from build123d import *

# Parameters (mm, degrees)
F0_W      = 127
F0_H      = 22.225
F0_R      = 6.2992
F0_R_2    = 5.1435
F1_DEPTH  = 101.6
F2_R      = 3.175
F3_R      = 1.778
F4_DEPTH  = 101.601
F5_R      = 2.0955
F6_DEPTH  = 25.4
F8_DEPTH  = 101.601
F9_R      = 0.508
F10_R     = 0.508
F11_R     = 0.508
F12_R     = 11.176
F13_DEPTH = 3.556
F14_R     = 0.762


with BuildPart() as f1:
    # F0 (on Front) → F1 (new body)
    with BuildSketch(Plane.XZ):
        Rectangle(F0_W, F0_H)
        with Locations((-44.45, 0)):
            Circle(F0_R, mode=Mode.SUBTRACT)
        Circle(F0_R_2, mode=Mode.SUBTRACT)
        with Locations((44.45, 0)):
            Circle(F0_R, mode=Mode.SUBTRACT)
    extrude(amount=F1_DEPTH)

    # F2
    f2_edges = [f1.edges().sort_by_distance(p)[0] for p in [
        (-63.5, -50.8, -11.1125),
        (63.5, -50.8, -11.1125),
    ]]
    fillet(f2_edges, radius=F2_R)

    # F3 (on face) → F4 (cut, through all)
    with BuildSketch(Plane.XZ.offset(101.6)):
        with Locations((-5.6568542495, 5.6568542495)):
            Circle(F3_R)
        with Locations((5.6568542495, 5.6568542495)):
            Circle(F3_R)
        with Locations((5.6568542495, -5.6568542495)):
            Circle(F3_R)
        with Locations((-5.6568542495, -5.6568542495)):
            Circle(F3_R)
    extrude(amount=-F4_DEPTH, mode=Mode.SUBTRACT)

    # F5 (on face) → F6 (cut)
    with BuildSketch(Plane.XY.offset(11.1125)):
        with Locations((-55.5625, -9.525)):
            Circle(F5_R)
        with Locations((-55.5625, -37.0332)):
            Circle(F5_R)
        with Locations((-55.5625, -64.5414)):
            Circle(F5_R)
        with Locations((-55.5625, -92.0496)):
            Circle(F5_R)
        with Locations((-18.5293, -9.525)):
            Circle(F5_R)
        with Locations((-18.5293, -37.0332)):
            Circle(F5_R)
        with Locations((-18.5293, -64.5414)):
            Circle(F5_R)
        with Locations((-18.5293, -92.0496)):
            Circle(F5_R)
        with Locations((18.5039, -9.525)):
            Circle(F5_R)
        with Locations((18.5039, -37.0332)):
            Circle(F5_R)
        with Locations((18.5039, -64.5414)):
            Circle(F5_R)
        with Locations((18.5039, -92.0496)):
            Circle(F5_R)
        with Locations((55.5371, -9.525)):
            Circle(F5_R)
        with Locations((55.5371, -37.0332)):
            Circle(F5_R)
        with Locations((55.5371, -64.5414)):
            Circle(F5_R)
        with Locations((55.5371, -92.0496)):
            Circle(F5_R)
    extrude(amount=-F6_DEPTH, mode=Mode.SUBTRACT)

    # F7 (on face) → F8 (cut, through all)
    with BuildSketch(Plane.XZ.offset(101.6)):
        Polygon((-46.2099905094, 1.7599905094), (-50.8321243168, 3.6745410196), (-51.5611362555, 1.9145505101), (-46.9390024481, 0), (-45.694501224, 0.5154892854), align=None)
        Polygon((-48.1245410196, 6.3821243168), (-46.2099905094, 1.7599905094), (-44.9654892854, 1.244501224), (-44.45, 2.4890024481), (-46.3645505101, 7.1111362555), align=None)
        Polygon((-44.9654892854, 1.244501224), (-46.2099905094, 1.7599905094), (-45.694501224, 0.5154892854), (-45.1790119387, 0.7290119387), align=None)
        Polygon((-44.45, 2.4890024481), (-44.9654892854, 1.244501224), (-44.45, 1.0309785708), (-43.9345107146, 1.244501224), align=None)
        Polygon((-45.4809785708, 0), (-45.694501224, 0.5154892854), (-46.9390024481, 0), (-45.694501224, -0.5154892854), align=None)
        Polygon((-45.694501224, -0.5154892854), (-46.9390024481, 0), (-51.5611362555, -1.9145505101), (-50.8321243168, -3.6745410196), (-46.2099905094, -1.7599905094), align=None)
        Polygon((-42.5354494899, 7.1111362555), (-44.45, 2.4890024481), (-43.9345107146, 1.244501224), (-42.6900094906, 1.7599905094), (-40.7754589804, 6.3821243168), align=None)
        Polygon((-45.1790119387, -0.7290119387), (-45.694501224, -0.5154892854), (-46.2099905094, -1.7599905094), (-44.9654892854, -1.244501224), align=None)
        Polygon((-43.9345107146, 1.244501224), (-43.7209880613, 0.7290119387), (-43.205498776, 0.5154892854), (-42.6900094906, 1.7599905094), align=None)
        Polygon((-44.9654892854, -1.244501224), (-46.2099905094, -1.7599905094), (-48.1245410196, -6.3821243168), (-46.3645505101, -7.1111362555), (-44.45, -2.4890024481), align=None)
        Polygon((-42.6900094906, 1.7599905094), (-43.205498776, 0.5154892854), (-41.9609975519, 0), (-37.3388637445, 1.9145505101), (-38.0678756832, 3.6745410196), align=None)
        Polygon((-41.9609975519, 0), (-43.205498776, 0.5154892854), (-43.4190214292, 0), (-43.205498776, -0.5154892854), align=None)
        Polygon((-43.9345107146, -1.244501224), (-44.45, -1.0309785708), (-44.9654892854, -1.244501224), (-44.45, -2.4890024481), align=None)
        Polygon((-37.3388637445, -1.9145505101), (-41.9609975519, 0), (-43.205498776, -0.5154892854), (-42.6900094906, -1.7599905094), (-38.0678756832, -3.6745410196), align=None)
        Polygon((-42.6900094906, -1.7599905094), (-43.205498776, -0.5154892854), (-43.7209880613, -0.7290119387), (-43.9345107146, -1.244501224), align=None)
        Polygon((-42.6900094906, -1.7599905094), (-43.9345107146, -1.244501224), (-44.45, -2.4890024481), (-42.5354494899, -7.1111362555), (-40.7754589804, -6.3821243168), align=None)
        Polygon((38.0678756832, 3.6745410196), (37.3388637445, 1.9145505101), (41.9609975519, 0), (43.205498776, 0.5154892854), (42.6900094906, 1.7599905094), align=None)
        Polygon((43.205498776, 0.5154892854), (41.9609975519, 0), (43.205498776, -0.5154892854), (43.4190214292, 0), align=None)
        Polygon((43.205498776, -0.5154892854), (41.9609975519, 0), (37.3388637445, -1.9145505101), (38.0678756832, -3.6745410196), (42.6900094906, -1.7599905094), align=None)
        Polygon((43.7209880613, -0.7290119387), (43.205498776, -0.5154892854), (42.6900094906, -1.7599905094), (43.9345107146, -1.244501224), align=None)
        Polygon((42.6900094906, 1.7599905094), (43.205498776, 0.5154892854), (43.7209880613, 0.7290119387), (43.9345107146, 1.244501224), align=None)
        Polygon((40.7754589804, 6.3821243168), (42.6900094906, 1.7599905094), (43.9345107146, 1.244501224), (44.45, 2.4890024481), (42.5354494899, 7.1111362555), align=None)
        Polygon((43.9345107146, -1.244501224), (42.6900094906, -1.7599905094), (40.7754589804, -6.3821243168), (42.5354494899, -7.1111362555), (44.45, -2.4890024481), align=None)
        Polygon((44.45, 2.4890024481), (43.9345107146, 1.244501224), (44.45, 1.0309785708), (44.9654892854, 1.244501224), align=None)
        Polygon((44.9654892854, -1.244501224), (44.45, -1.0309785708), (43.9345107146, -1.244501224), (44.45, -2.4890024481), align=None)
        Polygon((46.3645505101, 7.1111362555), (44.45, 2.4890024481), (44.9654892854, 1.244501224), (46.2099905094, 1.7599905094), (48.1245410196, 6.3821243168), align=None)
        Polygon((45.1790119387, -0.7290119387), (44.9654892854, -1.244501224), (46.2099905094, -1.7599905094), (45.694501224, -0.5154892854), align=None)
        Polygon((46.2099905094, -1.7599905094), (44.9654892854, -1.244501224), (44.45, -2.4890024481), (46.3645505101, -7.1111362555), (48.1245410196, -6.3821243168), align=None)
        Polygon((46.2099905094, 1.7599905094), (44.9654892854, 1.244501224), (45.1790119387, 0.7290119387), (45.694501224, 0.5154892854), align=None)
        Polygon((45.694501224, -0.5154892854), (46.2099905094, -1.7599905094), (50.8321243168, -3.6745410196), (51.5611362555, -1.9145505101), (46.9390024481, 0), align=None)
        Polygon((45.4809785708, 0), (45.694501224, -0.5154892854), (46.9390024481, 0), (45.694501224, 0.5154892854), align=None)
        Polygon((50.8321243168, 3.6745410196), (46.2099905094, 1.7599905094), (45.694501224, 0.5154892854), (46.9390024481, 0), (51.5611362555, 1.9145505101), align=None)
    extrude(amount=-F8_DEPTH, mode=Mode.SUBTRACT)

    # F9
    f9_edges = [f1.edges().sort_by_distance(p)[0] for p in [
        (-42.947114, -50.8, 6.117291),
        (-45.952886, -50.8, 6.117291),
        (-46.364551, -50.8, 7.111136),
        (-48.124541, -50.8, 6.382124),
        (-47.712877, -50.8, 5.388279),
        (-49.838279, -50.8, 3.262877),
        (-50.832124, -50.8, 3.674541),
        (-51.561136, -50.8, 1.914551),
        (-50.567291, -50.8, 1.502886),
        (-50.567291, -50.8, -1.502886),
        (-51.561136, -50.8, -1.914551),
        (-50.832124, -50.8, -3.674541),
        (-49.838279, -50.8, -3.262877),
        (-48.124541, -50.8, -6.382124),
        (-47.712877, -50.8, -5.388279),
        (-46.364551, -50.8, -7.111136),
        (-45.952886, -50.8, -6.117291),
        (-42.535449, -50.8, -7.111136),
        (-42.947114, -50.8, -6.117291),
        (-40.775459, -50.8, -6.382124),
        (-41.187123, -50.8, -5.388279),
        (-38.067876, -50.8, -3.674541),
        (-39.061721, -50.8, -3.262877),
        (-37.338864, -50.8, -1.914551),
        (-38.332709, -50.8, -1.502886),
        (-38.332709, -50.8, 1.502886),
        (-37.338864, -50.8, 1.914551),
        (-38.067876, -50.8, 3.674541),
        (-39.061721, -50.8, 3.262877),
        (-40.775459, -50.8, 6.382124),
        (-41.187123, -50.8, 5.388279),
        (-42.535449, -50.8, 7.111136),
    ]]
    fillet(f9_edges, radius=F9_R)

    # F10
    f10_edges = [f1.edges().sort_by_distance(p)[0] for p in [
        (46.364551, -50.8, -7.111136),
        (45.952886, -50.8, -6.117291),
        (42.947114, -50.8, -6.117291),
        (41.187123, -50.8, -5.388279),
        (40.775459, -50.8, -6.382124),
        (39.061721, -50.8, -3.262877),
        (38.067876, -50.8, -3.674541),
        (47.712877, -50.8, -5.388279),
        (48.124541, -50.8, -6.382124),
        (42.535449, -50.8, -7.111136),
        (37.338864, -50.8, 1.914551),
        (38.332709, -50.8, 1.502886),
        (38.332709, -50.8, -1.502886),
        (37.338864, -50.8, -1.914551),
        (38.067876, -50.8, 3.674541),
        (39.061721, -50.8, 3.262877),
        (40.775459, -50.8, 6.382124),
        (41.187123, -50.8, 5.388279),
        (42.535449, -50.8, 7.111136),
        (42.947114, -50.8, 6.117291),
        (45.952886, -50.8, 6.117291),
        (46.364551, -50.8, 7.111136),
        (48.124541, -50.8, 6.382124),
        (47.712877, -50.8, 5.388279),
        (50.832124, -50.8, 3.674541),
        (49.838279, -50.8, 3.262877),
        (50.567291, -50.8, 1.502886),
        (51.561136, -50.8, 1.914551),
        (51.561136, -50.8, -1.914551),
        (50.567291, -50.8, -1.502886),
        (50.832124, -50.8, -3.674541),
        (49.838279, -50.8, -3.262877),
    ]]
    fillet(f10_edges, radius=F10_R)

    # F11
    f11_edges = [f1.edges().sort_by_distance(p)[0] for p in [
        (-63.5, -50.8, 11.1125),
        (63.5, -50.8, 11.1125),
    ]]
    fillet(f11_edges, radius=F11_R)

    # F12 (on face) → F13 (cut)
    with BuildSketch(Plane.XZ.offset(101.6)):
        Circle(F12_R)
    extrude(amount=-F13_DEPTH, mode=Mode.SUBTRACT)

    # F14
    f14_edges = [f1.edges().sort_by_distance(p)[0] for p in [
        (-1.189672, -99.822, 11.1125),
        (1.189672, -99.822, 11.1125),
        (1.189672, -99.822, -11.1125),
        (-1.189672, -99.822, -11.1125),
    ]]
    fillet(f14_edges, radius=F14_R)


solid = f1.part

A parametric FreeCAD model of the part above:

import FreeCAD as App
import Part
import Sketcher

V = App.Vector
Q = App.Units.Quantity


def edges_at(feature, points):
    """Names of the edges that pass closest to the given points."""
    edges = feature.Shape.Edges
    near = lambda p: min(range(len(edges)), key=lambda i: edges[i].distToShape(Part.Vertex(*p))[0])
    return sorted({f"Edge{near(p) + 1}" for p in points})


def add_polygon(sketch, points):
    """Adds a closed chain of lines whose ends are joined by coincident constraints."""
    first, n = sketch.GeometryCount, len(points)
    for a, b in zip(points, points[1:] + points[:1]):
        sketch.addGeometry(Part.LineSegment(App.Vector(*a, 0), App.Vector(*b, 0)), False)
    for i in range(n):
        sketch.addConstraint(Sketcher.Constraint("Coincident", first + i, 2, first + (i + 1) % n, 1))

doc = App.newDocument("Part")
body = doc.addObject("PartDesign::Body", "Body")

# Sketch on XZ plane
sketch1 = body.newObject("Sketcher::SketchObject", "Sketch")
sketch1.AttachmentSupport = (doc.getObject("XZ_Plane"), [""])
sketch1.MapMode = "FlatFace"
add_polygon(sketch1, [(-64, 11), (-64, -11), (64, -11), (64, 11)])  # lines 0-3
sketch1.addGeometry(Part.Circle(V(-44, 0, 0), V(0, 0, 1), 6), False)  # 4
sketch1.addGeometry(Part.Circle(V(0, 0, 0), V(0, 0, 1), 5), False)  # 5
sketch1.addGeometry(Part.Circle(V(44, 0, 0), V(0, 0, 1), 6), False)  # 6
sketch1.addConstraint(Sketcher.Constraint("Vertical", 0))
sketch1.addConstraint(Sketcher.Constraint("Horizontal", 1))
sketch1.addConstraint(Sketcher.Constraint("Vertical", 2))
sketch1.addConstraint(Sketcher.Constraint("Horizontal", 3))
sketch1.addConstraint(Sketcher.Constraint("Coincident", 5, 3, -1, 1))
sketch1.addConstraint(Sketcher.Constraint("Equal", 4, 6))
sketch1.addConstraint(Sketcher.Constraint("Symmetric", 4, 3, 6, 3, -1, 1))
sketch1.addConstraint(Sketcher.Constraint("Symmetric", 0, 2, 2, 2, -1, 1))
sketch1.addConstraint(Sketcher.Constraint("PointOnObject", 4, 3, -1))
sketch1.addConstraint(Sketcher.Constraint("DistanceX", 1, 1, 1, 2, Q("5 in")))
sketch1.addConstraint(Sketcher.Constraint("Diameter", 4, Q("0.496 in")))
sketch1.addConstraint(Sketcher.Constraint("Diameter", 5, Q("0.405 in")))
sketch1.addConstraint(Sketcher.Constraint("DistanceX", 4, 3, 6, 3, Q("3.5 in")))
sketch1.addConstraint(Sketcher.Constraint("DistanceY", 0, 2, 0, 1, Q("0.875 in")))
pad1 = body.newObject("PartDesign::Pad", "Pad")
pad1.Profile = sketch1
pad1.Length = Q("4 in")
doc.recompute()

fillet = body.newObject("PartDesign::Fillet", "Fillet")
fillet.Base = (pad1, edges_at(pad1, [(-63.5, -50.8, -11.113), (63.5, -50.8, -11.113)]))
fillet.Radius = Q("0.125 in")

# Sketch on XZ plane
sketch2 = body.newObject("Sketcher::SketchObject", "Sketch001")
sketch2.AttachmentSupport = (doc.getObject("XZ_Plane"), [""])
sketch2.MapMode = "FlatFace"
sketch2.AttachmentOffset = App.Placement(V(0, 0, 4 * 25.4), App.Rotation())
sketch2.addGeometry(Part.Circle(V(-5.7, 5.7, 0), V(0, 0, 1), 1.8), False)
sketch2.addGeometry(Part.Circle(V(5.7, 5.7, 0), V(0, 0, 1), 1.8), False)
sketch2.addGeometry(Part.Circle(V(5.7, -5.7, 0), V(0, 0, 1), 1.8), False)
sketch2.addGeometry(Part.Circle(V(-5.7, -5.7, 0), V(0, 0, 1), 1.8), False)
sketch2.addConstraint(Sketcher.Constraint("Equal", 0, 1))
sketch2.addConstraint(Sketcher.Constraint("Equal", 1, 2))
sketch2.addConstraint(Sketcher.Constraint("Equal", 2, 3))
sketch2.addConstraint(Sketcher.Constraint("Symmetric", 0, 3, 2, 3, -1, 1))
sketch2.addConstraint(Sketcher.Constraint("Symmetric", 1, 3, 3, 3, -1, 1))
sketch2.addConstraint(Sketcher.Constraint("Symmetric", 0, 3, 1, 3, -2))
sketch2.addConstraint(Sketcher.Constraint("Diameter", 0, Q("0.14 in")))
sketch2.addConstraint(Sketcher.Constraint("DistanceX", 0, 3, 1, 3, Q("11.313709 mm")))
sketch2.addConstraint(Sketcher.Constraint("DistanceY", 2, 3, 1, 3, Q("11.313709 mm")))
pocket1 = body.newObject("PartDesign::Pocket", "Pocket")
pocket1.Profile = sketch2
pocket1.Type = "ThroughAll"

# Sketch on XY plane
sketch3 = body.newObject("Sketcher::SketchObject", "Sketch002")
sketch3.AttachmentSupport = (doc.getObject("XY_Plane"), [""])
sketch3.MapMode = "FlatFace"
sketch3.AttachmentOffset = App.Placement(V(0, 0, 0.4375 * 25.4), App.Rotation())
sketch3.addGeometry(Part.Circle(V(-55.6, -9.5, 0), V(0, 0, 1), 2.1), False)
sketch3.addGeometry(Part.Circle(V(-55.6, -37, 0), V(0, 0, 1), 2.1), False)
sketch3.addGeometry(Part.Circle(V(-55.6, -64.5, 0), V(0, 0, 1), 2.1), False)
sketch3.addGeometry(Part.Circle(V(-55.6, -92, 0), V(0, 0, 1), 2.1), False)
sketch3.addGeometry(Part.Circle(V(-18.5, -9.5, 0), V(0, 0, 1), 2.1), False)
sketch3.addGeometry(Part.Circle(V(-18.5, -37, 0), V(0, 0, 1), 2.1), False)
sketch3.addGeometry(Part.Circle(V(-18.5, -64.5, 0), V(0, 0, 1), 2.1), False)
sketch3.addGeometry(Part.Circle(V(-18.5, -92, 0), V(0, 0, 1), 2.1), False)
sketch3.addGeometry(Part.Circle(V(18.5, -9.5, 0), V(0, 0, 1), 2.1), False)
sketch3.addGeometry(Part.Circle(V(18.5, -37, 0), V(0, 0, 1), 2.1), False)
sketch3.addGeometry(Part.Circle(V(18.5, -64.5, 0), V(0, 0, 1), 2.1), False)
sketch3.addGeometry(Part.Circle(V(18.5, -92, 0), V(0, 0, 1), 2.1), False)
sketch3.addGeometry(Part.Circle(V(55.5, -9.5, 0), V(0, 0, 1), 2.1), False)
sketch3.addGeometry(Part.Circle(V(55.5, -37, 0), V(0, 0, 1), 2.1), False)
sketch3.addGeometry(Part.Circle(V(55.5, -64.5, 0), V(0, 0, 1), 2.1), False)
sketch3.addGeometry(Part.Circle(V(55.5, -92, 0), V(0, 0, 1), 2.1), False)
sketch3.addConstraint(Sketcher.Constraint("Equal", 0, 1))
sketch3.addConstraint(Sketcher.Constraint("Equal", 1, 2))
sketch3.addConstraint(Sketcher.Constraint("Equal", 2, 3))
sketch3.addConstraint(Sketcher.Constraint("Equal", 3, 4))
sketch3.addConstraint(Sketcher.Constraint("Equal", 4, 5))
sketch3.addConstraint(Sketcher.Constraint("Equal", 5, 6))
sketch3.addConstraint(Sketcher.Constraint("Equal", 6, 7))
sketch3.addConstraint(Sketcher.Constraint("Equal", 7, 8))
sketch3.addConstraint(Sketcher.Constraint("Equal", 8, 9))
sketch3.addConstraint(Sketcher.Constraint("Equal", 9, 10))
sketch3.addConstraint(Sketcher.Constraint("Equal", 10, 11))
sketch3.addConstraint(Sketcher.Constraint("Equal", 11, 12))
sketch3.addConstraint(Sketcher.Constraint("Equal", 12, 13))
sketch3.addConstraint(Sketcher.Constraint("Equal", 13, 14))
sketch3.addConstraint(Sketcher.Constraint("Equal", 14, 15))
sketch3.addConstraint(Sketcher.Constraint("Horizontal", 0, 3, 4, 3))
sketch3.addConstraint(Sketcher.Constraint("Horizontal", 1, 3, 5, 3))
sketch3.addConstraint(Sketcher.Constraint("Horizontal", 2, 3, 6, 3))
sketch3.addConstraint(Sketcher.Constraint("Horizontal", 3, 3, 7, 3))
sketch3.addConstraint(Sketcher.Constraint("Horizontal", 4, 3, 8, 3))
sketch3.addConstraint(Sketcher.Constraint("Horizontal", 5, 3, 9, 3))
sketch3.addConstraint(Sketcher.Constraint("Horizontal", 6, 3, 10, 3))
sketch3.addConstraint(Sketcher.Constraint("Horizontal", 7, 3, 11, 3))
sketch3.addConstraint(Sketcher.Constraint("Horizontal", 8, 3, 12, 3))
sketch3.addConstraint(Sketcher.Constraint("Horizontal", 9, 3, 13, 3))
sketch3.addConstraint(Sketcher.Constraint("Horizontal", 10, 3, 14, 3))
sketch3.addConstraint(Sketcher.Constraint("Horizontal", 11, 3, 15, 3))
sketch3.addConstraint(Sketcher.Constraint("Vertical", 0, 3, 1, 3))
sketch3.addConstraint(Sketcher.Constraint("Vertical", 1, 3, 2, 3))
sketch3.addConstraint(Sketcher.Constraint("Vertical", 2, 3, 3, 3))
sketch3.addConstraint(Sketcher.Constraint("Vertical", 4, 3, 5, 3))
sketch3.addConstraint(Sketcher.Constraint("Vertical", 5, 3, 6, 3))
sketch3.addConstraint(Sketcher.Constraint("Vertical", 6, 3, 7, 3))
sketch3.addConstraint(Sketcher.Constraint("Vertical", 8, 3, 9, 3))
sketch3.addConstraint(Sketcher.Constraint("Vertical", 9, 3, 10, 3))
sketch3.addConstraint(Sketcher.Constraint("Vertical", 10, 3, 11, 3))
sketch3.addConstraint(Sketcher.Constraint("Vertical", 12, 3, 13, 3))
sketch3.addConstraint(Sketcher.Constraint("Vertical", 13, 3, 14, 3))
sketch3.addConstraint(Sketcher.Constraint("Vertical", 14, 3, 15, 3))
sketch3.addConstraint(Sketcher.Constraint("Diameter", 0, Q("0.165 in")))
sketch3.addConstraint(Sketcher.Constraint("DistanceX", 0, 3, -1, 1, Q("2.1875 in")))
sketch3.addConstraint(Sketcher.Constraint("DistanceY", 0, 3, -1, 1, Q("0.375 in")))
sketch3.addConstraint(Sketcher.Constraint("DistanceY", 1, 3, -1, 1, Q("1.458 in")))
sketch3.addConstraint(Sketcher.Constraint("DistanceY", 2, 3, -1, 1, Q("2.541 in")))
sketch3.addConstraint(Sketcher.Constraint("DistanceY", 3, 3, -1, 1, Q("3.624 in")))
sketch3.addConstraint(Sketcher.Constraint("DistanceX", 0, 3, 4, 3, Q("1.458 in")))
sketch3.addConstraint(Sketcher.Constraint("DistanceX", 4, 3, 8, 3, Q("1.458 in")))
sketch3.addConstraint(Sketcher.Constraint("DistanceX", 8, 3, 12, 3, Q("1.458 in")))
pocket2 = body.newObject("PartDesign::Pocket", "Pocket001")
pocket2.Profile = sketch3
pocket2.Length = Q("1 in")

# Sketch on XZ plane
sketch4 = body.newObject("Sketcher::SketchObject", "Sketch003")
sketch4.AttachmentSupport = (doc.getObject("XZ_Plane"), [""])
sketch4.MapMode = "FlatFace"
sketch4.AttachmentOffset = App.Placement(V(0, 0, 4 * 25.4), App.Rotation())
add_polygon(sketch4, [(-46.4, -7.1), (-44.5, -2.5), (-42.5, -7.1), (-40.8, -6.4), (-42.7, -1.8), (-38.1, -3.7), (-37.3, -1.9), (-42, 0), (-37.3, 1.9), (-38.1, 3.7), (-42.7, 1.8), (-40.8, 6.4), (-42.5, 7.1), (-44.5, 2.5), (-46.4, 7.1), (-48.1, 6.4), (-46.2, 1.8), (-50.8, 3.7), (-51.6, 1.9), (-46.9, 0), (-51.6, -1.9), (-50.8, -3.7), (-46.2, -1.8), (-48.1, -6.4)])  # lines 0-23
add_polygon(sketch4, [(-43.7, -0.7), (-43.9, -1.2), (-44.5, -1), (-45, -1.2), (-45.2, -0.7), (-45.7, -0.5), (-45.5, 0), (-45.7, 0.5), (-45.2, 0.7), (-45, 1.2), (-44.5, 1), (-43.9, 1.2), (-43.7, 0.7), (-43.2, 0.5), (-43.4, 0), (-43.2, -0.5)])  # lines 24-39
add_polygon(sketch4, [(51.6, -1.9), (46.9, 0), (51.6, 1.9), (50.8, 3.7), (46.2, 1.8), (48.1, 6.4), (46.4, 7.1), (44.5, 2.5), (42.5, 7.1), (40.8, 6.4), (42.7, 1.8), (38.1, 3.7), (37.3, 1.9), (42, 0), (37.3, -1.9), (38.1, -3.7), (42.7, -1.8), (40.8, -6.4), (42.5, -7.1), (44.5, -2.5), (46.4, -7.1), (48.1, -6.4), (46.2, -1.8), (50.8, -3.7)])  # lines 40-63
add_polygon(sketch4, [(45.2, 0.7), (45.7, 0.5), (45.5, 0), (45.7, -0.5), (45.2, -0.7), (45, -1.2), (44.5, -1), (43.9, -1.2), (43.7, -0.7), (43.2, -0.5), (43.4, 0), (43.2, 0.5), (43.7, 0.7), (43.9, 1.2), (44.5, 1), (45, 1.2)])  # lines 64-79
sketch4.addConstraint(Sketcher.Constraint("Symmetric", 18, 2, 40, 2, -1, 1))
sketch4.addConstraint(Sketcher.Constraint("Symmetric", 19, 2, 41, 2, -1, 1))
sketch4.addConstraint(Sketcher.Constraint("Symmetric", 20, 2, 42, 2, -1, 1))
sketch4.addConstraint(Sketcher.Constraint("Symmetric", 21, 2, 43, 2, -1, 1))
sketch4.addConstraint(Sketcher.Constraint("Symmetric", 22, 2, 44, 2, -1, 1))
sketch4.addConstraint(Sketcher.Constraint("Symmetric", 23, 2, 45, 2, -1, 1))
sketch4.addConstraint(Sketcher.Constraint("Symmetric", 0, 2, 46, 2, -1, 1))
sketch4.addConstraint(Sketcher.Constraint("Symmetric", 1, 2, 47, 2, -1, 1))
sketch4.addConstraint(Sketcher.Constraint("Symmetric", 2, 2, 48, 2, -1, 1))
sketch4.addConstraint(Sketcher.Constraint("Symmetric", 3, 2, 49, 2, -1, 1))
sketch4.addConstraint(Sketcher.Constraint("Symmetric", 4, 2, 50, 2, -1, 1))
sketch4.addConstraint(Sketcher.Constraint("Symmetric", 5, 2, 51, 2, -1, 1))
sketch4.addConstraint(Sketcher.Constraint("Symmetric", 6, 2, 52, 2, -1, 1))
sketch4.addConstraint(Sketcher.Constraint("Symmetric", 7, 2, 53, 2, -1, 1))
sketch4.addConstraint(Sketcher.Constraint("Symmetric", 8, 2, 54, 2, -1, 1))
sketch4.addConstraint(Sketcher.Constraint("Symmetric", 9, 2, 55, 2, -1, 1))
sketch4.addConstraint(Sketcher.Constraint("Symmetric", 10, 2, 56, 2, -1, 1))
sketch4.addConstraint(Sketcher.Constraint("Symmetric", 11, 2, 57, 2, -1, 1))
sketch4.addConstraint(Sketcher.Constraint("Symmetric", 12, 2, 58, 2, -1, 1))
sketch4.addConstraint(Sketcher.Constraint("Symmetric", 13, 2, 59, 2, -1, 1))
sketch4.addConstraint(Sketcher.Constraint("Symmetric", 14, 2, 60, 2, -1, 1))
sketch4.addConstraint(Sketcher.Constraint("Symmetric", 15, 2, 61, 2, -1, 1))
sketch4.addConstraint(Sketcher.Constraint("Symmetric", 16, 2, 62, 2, -1, 1))
sketch4.addConstraint(Sketcher.Constraint("Symmetric", 17, 2, 63, 2, -1, 1))
sketch4.addConstraint(Sketcher.Constraint("Symmetric", 28, 2, 64, 2, -1, 1))
sketch4.addConstraint(Sketcher.Constraint("Symmetric", 29, 2, 65, 2, -1, 1))
sketch4.addConstraint(Sketcher.Constraint("Symmetric", 30, 2, 66, 2, -1, 1))
sketch4.addConstraint(Sketcher.Constraint("Symmetric", 31, 2, 67, 2, -1, 1))
sketch4.addConstraint(Sketcher.Constraint("Symmetric", 32, 2, 68, 2, -1, 1))
sketch4.addConstraint(Sketcher.Constraint("Symmetric", 33, 2, 69, 2, -1, 1))
sketch4.addConstraint(Sketcher.Constraint("Symmetric", 34, 2, 70, 2, -1, 1))
sketch4.addConstraint(Sketcher.Constraint("Symmetric", 35, 2, 71, 2, -1, 1))
sketch4.addConstraint(Sketcher.Constraint("Symmetric", 36, 2, 72, 2, -1, 1))
sketch4.addConstraint(Sketcher.Constraint("Symmetric", 37, 2, 73, 2, -1, 1))
sketch4.addConstraint(Sketcher.Constraint("Symmetric", 38, 2, 74, 2, -1, 1))
sketch4.addConstraint(Sketcher.Constraint("Symmetric", 39, 2, 75, 2, -1, 1))
sketch4.addConstraint(Sketcher.Constraint("Symmetric", 24, 2, 76, 2, -1, 1))
sketch4.addConstraint(Sketcher.Constraint("Symmetric", 25, 2, 77, 2, -1, 1))
sketch4.addConstraint(Sketcher.Constraint("Symmetric", 26, 2, 78, 2, -1, 1))
sketch4.addConstraint(Sketcher.Constraint("Symmetric", 27, 2, 79, 2, -1, 1))
sketch4.addConstraint(Sketcher.Constraint("Symmetric", 17, 2, 41, 2, -2))
sketch4.addConstraint(Sketcher.Constraint("Symmetric", 16, 2, 42, 2, -2))
sketch4.addConstraint(Sketcher.Constraint("Symmetric", 15, 2, 43, 2, -2))
sketch4.addConstraint(Sketcher.Constraint("Symmetric", 14, 2, 44, 2, -2))
sketch4.addConstraint(Sketcher.Constraint("Symmetric", 13, 2, 45, 2, -2))
sketch4.addConstraint(Sketcher.Constraint("Symmetric", 12, 2, 46, 2, -2))
sketch4.addConstraint(Sketcher.Constraint("Symmetric", 11, 2, 47, 2, -2))
sketch4.addConstraint(Sketcher.Constraint("Symmetric", 10, 2, 48, 2, -2))
sketch4.addConstraint(Sketcher.Constraint("Symmetric", 9, 2, 49, 2, -2))
sketch4.addConstraint(Sketcher.Constraint("Symmetric", 8, 2, 50, 2, -2))
sketch4.addConstraint(Sketcher.Constraint("Symmetric", 7, 2, 51, 2, -2))
sketch4.addConstraint(Sketcher.Constraint("Symmetric", 30, 2, 64, 2, -2))
sketch4.addConstraint(Sketcher.Constraint("Symmetric", 27, 2, 67, 2, -2))
sketch4.addConstraint(Sketcher.Constraint("Symmetric", 26, 2, 68, 2, -2))
sketch4.addConstraint(Sketcher.Constraint("Symmetric", 25, 2, 69, 2, -2))
sketch4.addConstraint(Sketcher.Constraint("Symmetric", 24, 2, 70, 2, -2))
sketch4.addConstraint(Sketcher.Constraint("Symmetric", 39, 2, 71, 2, -2))
sketch4.addConstraint(Sketcher.Constraint("Symmetric", 38, 2, 72, 2, -2))
sketch4.addConstraint(Sketcher.Constraint("PointOnObject", 6, 2, -1))
sketch4.addConstraint(Sketcher.Constraint("PointOnObject", 18, 2, -1))
sketch4.addConstraint(Sketcher.Constraint("PointOnObject", 29, 2, -1))
sketch4.addConstraint(Sketcher.Constraint("PointOnObject", 37, 2, -1))
sketch4.addConstraint(Sketcher.Constraint("Perpendicular", 1, 2))
sketch4.addConstraint(Sketcher.Constraint("Perpendicular", 2, 3))
sketch4.addConstraint(Sketcher.Constraint("Perpendicular", 0, 4))
sketch4.addConstraint(Sketcher.Constraint("Perpendicular", 4, 5))
sketch4.addConstraint(Sketcher.Constraint("Perpendicular", 5, 6))
sketch4.addConstraint(Sketcher.Constraint("Perpendicular", 3, 7))
sketch4.addConstraint(Sketcher.Constraint("Perpendicular", 13, 14))
sketch4.addConstraint(Sketcher.Constraint("Perpendicular", 14, 15))
sketch4.addConstraint(Sketcher.Constraint("Perpendicular", 12, 16))
sketch4.addConstraint(Sketcher.Constraint("Perpendicular", 16, 17))
sketch4.addConstraint(Sketcher.Constraint("Perpendicular", 17, 18))
sketch4.addConstraint(Sketcher.Constraint("Perpendicular", 23, 24))
sketch4.addConstraint(Sketcher.Constraint("Perpendicular", 24, 25))
sketch4.addConstraint(Sketcher.Constraint("Parallel", 21, 26))
sketch4.addConstraint(Sketcher.Constraint("Perpendicular", 26, 27))
sketch4.addConstraint(Sketcher.Constraint("Parallel", 25, 28))
sketch4.addConstraint(Sketcher.Constraint("Perpendicular", 28, 29))
sketch4.addConstraint(Sketcher.Constraint("Parallel", 33, 36))
sketch4.addConstraint(Sketcher.Constraint("Perpendicular", 36, 37))
sketch4.addConstraint(Sketcher.Constraint("Horizontal", 11, 2, 13, 2))
sketch4.addConstraint(Sketcher.Constraint("Horizontal", 10, 2, 14, 2))
sketch4.addConstraint(Sketcher.Constraint("Horizontal", 9, 2, 15, 2))
sketch4.addConstraint(Sketcher.Constraint("Horizontal", 8, 2, 16, 2))
sketch4.addConstraint(Sketcher.Constraint("Horizontal", 7, 2, 17, 2))
sketch4.addConstraint(Sketcher.Constraint("Horizontal", 24, 2, 26, 2))
sketch4.addConstraint(Sketcher.Constraint("Horizontal", 31, 2, 35, 2))
sketch4.addConstraint(Sketcher.Constraint("Horizontal", 30, 2, 36, 2))
sketch4.addConstraint(Sketcher.Constraint("Vertical", 12, 2, 25, 2))
sketch4.addConstraint(Sketcher.Constraint("Equal", 1, 3))
sketch4.addConstraint(Sketcher.Constraint("Equal", 3, 4))
sketch4.addConstraint(Sketcher.Constraint("Equal", 2, 5))
sketch4.addConstraint(Sketcher.Constraint("Equal", 4, 6))
sketch4.addConstraint(Sketcher.Constraint("Equal", 24, 25))
sketch4.addConstraint(Sketcher.Constraint("Equal", 27, 28))
sketch4.addConstraint(Sketcher.Constraint("Equal", 28, 29))
sketch4.addConstraint(Sketcher.Constraint("Angle", 0, Q("67.5 deg")))
sketch4.addConstraint(Sketcher.Constraint("DistanceX", 0, 2, -1, 1, Q("1.75 in")))
sketch4.addConstraint(Sketcher.Constraint("Distance", 2, Q("0.075 in")))
sketch4.addConstraint(Sketcher.Constraint("DistanceY", 24, 2, -1, 1, Q("1.244501 mm")))
sketch4.addConstraint(Sketcher.Constraint("Distance", 0, Q("5.002962 mm")))
pocket3 = body.newObject("PartDesign::Pocket", "Pocket002")
pocket3.Profile = sketch4
pocket3.Type = "ThroughAll"
doc.recompute()

fillet2 = body.newObject("PartDesign::Fillet", "Fillet001")
fillet2.Base = (pocket3, edges_at(pocket3, [
    (-42.947, -50.8, 6.117),
    (-45.953, -50.8, 6.117),
    (-46.365, -50.8, 7.111),
    (-48.125, -50.8, 6.382),
    (-47.713, -50.8, 5.388),
    (-49.838, -50.8, 3.263),
    (-50.832, -50.8, 3.675),
    (-51.561, -50.8, 1.915),
    (-50.567, -50.8, 1.503),
    (-50.567, -50.8, -1.503),
    (-51.561, -50.8, -1.915),
    (-50.832, -50.8, -3.675),
    (-49.838, -50.8, -3.263),
    (-48.125, -50.8, -6.382),
    (-47.713, -50.8, -5.388),
    (-46.365, -50.8, -7.111),
    (-45.953, -50.8, -6.117),
    (-42.535, -50.8, -7.111),
    (-42.947, -50.8, -6.117),
    (-40.775, -50.8, -6.382),
    (-41.187, -50.8, -5.388),
    (-38.068, -50.8, -3.675),
    (-39.062, -50.8, -3.263),
    (-37.339, -50.8, -1.915),
    (-38.333, -50.8, -1.503),
    (-38.333, -50.8, 1.503),
    (-37.339, -50.8, 1.915),
    (-38.068, -50.8, 3.675),
    (-39.062, -50.8, 3.263),
    (-40.775, -50.8, 6.382),
    (-41.187, -50.8, 5.388),
    (-42.535, -50.8, 7.111),
]))
fillet2.Radius = Q("0.02 in")
doc.recompute()

fillet3 = body.newObject("PartDesign::Fillet", "Fillet002")
fillet3.Base = (fillet2, edges_at(fillet2, [
    (46.365, -50.8, -7.111),
    (45.953, -50.8, -6.117),
    (42.947, -50.8, -6.117),
    (41.187, -50.8, -5.388),
    (40.775, -50.8, -6.382),
    (39.062, -50.8, -3.263),
    (38.068, -50.8, -3.675),
    (47.713, -50.8, -5.388),
    (48.125, -50.8, -6.382),
    (42.535, -50.8, -7.111),
    (37.339, -50.8, 1.915),
    (38.333, -50.8, 1.503),
    (38.333, -50.8, -1.503),
    (37.339, -50.8, -1.915),
    (38.068, -50.8, 3.675),
    (39.062, -50.8, 3.263),
    (40.775, -50.8, 6.382),
    (41.187, -50.8, 5.388),
    (42.535, -50.8, 7.111),
    (42.947, -50.8, 6.117),
    (45.953, -50.8, 6.117),
    (46.365, -50.8, 7.111),
    (48.125, -50.8, 6.382),
    (47.713, -50.8, 5.388),
    (50.832, -50.8, 3.675),
    (49.838, -50.8, 3.263),
    (50.567, -50.8, 1.503),
    (51.561, -50.8, 1.915),
    (51.561, -50.8, -1.915),
    (50.567, -50.8, -1.503),
    (50.832, -50.8, -3.675),
    (49.838, -50.8, -3.263),
]))
fillet3.Radius = Q("0.02 in")
doc.recompute()

fillet4 = body.newObject("PartDesign::Fillet", "Fillet003")
fillet4.Base = (fillet3, edges_at(fillet3, [(-63.5, -50.8, 11.113), (63.5, -50.8, 11.113)]))
fillet4.Radius = Q("0.02 in")

# Sketch on XZ plane
sketch5 = body.newObject("Sketcher::SketchObject", "Sketch004")
sketch5.AttachmentSupport = (doc.getObject("XZ_Plane"), [""])
sketch5.MapMode = "FlatFace"
sketch5.AttachmentOffset = App.Placement(V(0, 0, 4 * 25.4), App.Rotation())
sketch5.addGeometry(Part.Circle(V(0, 0, 0), V(0, 0, 1), 11), False)
sketch5.addConstraint(Sketcher.Constraint("Coincident", 0, 3, -1, 1))
sketch5.addConstraint(Sketcher.Constraint("Diameter", 0, Q("0.88 in")))
pocket4 = body.newObject("PartDesign::Pocket", "Pocket003")
pocket4.Profile = sketch5
pocket4.Length = Q("0.14 in")
doc.recompute()

fillet5 = body.newObject("PartDesign::Fillet", "Fillet004")
fillet5.Base = (pocket4, edges_at(pocket4, [
    (-1.19, -99.822, 11.113),
    (1.19, -99.822, 11.113),
    (1.19, -99.822, -11.113),
    (-1.19, -99.822, -11.113),
]))
fillet5.Radius = Q("0.03 in")

doc.recompute()
